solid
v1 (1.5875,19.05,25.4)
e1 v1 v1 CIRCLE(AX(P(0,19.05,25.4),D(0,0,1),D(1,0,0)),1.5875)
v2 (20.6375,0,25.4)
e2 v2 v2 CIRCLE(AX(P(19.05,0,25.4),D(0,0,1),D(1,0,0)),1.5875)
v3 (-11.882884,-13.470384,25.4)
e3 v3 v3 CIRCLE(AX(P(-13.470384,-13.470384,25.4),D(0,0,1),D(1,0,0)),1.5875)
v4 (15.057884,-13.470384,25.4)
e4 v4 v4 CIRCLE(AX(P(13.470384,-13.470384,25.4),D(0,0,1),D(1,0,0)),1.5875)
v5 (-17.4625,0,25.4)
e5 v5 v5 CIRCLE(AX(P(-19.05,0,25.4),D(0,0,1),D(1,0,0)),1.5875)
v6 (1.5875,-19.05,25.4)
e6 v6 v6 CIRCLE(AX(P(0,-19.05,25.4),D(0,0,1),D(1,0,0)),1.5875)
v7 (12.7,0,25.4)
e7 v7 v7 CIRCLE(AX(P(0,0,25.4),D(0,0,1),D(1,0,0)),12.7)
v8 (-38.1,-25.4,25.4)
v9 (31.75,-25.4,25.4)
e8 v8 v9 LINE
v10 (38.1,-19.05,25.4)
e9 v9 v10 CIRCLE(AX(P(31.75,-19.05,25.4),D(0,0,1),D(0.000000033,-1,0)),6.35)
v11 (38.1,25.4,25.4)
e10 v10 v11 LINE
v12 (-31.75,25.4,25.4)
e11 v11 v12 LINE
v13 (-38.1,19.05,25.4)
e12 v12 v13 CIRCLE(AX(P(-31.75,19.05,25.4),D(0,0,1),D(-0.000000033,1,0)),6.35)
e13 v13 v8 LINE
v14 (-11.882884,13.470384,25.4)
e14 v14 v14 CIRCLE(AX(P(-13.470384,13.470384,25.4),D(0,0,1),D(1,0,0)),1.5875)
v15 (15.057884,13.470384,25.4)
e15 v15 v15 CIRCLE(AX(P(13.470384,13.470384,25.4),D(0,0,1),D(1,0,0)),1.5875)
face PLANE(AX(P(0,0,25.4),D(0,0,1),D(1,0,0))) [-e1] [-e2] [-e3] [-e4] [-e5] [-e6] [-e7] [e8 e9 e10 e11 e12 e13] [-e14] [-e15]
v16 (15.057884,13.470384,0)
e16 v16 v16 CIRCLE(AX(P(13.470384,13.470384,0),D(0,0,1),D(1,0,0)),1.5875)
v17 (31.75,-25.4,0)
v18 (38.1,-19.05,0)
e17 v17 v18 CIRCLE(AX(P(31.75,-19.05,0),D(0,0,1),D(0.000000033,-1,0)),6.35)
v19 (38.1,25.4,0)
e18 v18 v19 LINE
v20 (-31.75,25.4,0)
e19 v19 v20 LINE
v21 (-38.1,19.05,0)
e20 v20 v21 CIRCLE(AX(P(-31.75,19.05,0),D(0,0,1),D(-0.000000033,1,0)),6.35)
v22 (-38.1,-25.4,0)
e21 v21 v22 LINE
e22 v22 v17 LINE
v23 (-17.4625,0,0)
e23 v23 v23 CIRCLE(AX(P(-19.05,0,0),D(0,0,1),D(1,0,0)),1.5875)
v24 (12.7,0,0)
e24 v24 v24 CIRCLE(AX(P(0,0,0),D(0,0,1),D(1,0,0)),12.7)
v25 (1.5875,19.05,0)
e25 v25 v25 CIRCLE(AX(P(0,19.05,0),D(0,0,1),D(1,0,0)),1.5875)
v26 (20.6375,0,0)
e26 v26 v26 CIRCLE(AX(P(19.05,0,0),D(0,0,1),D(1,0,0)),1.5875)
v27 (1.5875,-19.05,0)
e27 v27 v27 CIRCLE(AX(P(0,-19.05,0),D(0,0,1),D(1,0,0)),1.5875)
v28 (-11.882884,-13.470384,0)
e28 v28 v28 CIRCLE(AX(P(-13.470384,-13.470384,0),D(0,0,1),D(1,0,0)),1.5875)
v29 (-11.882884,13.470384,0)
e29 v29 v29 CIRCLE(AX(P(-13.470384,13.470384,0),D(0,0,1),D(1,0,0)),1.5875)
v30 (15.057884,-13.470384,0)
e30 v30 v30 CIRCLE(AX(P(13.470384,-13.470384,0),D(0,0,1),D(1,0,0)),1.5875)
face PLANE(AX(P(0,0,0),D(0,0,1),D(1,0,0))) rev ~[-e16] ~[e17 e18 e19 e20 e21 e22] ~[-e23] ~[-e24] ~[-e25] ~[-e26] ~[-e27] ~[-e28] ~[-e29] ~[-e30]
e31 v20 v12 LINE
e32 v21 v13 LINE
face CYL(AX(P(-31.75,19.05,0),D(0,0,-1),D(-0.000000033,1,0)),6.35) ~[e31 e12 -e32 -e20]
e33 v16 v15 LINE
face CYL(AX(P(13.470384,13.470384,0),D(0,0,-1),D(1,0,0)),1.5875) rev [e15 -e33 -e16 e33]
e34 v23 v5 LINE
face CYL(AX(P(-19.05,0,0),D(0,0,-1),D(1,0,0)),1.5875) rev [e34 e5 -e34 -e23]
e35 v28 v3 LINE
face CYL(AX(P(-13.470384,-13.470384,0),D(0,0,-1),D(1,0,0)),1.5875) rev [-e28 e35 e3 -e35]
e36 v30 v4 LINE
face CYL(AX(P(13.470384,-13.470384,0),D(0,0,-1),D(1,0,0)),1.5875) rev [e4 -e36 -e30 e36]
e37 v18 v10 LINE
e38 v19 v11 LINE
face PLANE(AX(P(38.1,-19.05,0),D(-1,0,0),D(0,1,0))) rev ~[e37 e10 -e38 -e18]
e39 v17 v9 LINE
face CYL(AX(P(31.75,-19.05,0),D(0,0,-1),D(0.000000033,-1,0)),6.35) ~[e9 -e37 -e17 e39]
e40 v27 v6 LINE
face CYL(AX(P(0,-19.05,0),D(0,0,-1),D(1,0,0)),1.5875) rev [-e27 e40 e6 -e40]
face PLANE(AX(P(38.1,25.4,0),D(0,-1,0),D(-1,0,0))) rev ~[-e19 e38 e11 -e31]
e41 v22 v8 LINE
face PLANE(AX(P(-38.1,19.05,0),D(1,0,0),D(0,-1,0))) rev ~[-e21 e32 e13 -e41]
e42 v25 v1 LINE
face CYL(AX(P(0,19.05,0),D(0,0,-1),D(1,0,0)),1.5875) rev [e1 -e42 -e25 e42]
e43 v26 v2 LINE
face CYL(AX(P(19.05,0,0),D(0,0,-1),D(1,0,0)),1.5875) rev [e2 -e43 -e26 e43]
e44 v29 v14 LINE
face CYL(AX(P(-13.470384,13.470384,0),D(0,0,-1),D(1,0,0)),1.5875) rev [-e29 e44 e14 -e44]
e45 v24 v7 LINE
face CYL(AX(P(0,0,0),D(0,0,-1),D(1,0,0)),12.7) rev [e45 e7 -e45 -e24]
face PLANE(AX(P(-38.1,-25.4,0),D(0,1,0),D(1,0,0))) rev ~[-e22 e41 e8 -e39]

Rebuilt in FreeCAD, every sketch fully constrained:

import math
import FreeCAD as App
import Part
import Sketcher

V = App.Vector
Q = App.Units.Quantity

doc = App.newDocument("Part")
body = doc.addObject("PartDesign::Body", "Body")

sketch1 = doc.addObject("Sketcher::SketchObject", "Sketch")
body.addObject(sketch1)
sketch1.AttachmentSupport = (doc.XY_Plane, [""])
sketch1.MapMode = "FlatFace"
sketch1.addGeometry(Part.LineSegment(V(38.1, -19.05, 0), V(38.1, 25.4, 0)), False)
sketch1.addGeometry(Part.LineSegment(V(38.1, 25.4, 0), V(-31.75, 25.4, 0)), False)
sketch1.addGeometry(Part.ArcOfCircle(Part.Circle(V(-31.75, 19.05, 0), V(0, 0, 1), 6.35), math.radians(90.000002), math.radians(179.999998)), False)
sketch1.addGeometry(Part.LineSegment(V(-38.1, 19.05, 0), V(-38.1, -25.4, 0)), False)
sketch1.addGeometry(Part.LineSegment(V(-38.1, -25.4, 0), V(31.75, -25.4, 0)), False)
sketch1.addGeometry(Part.ArcOfCircle(Part.Circle(V(31.75, -19.05, 0), V(0, 0, 1), 6.35), math.radians(-89.999998), math.radians(-0.000002)), False)
sketch1.addGeometry(Part.Circle(V(-13.470384, -13.470384, 0), V(0, 0, 1), 1.5875), False)
sketch1.addGeometry(Part.Circle(V(0, -19.05, 0), V(0, 0, 1), 1.5875), False)
sketch1.addGeometry(Part.Circle(V(13.470384, -13.470384, 0), V(0, 0, 1), 1.5875), False)
sketch1.addGeometry(Part.Circle(V(-19.05, 0, 0), V(0, 0, 1), 1.5875), False)
sketch1.addGeometry(Part.Circle(V(-13.470384, 13.470384, 0), V(0, 0, 1), 1.5875), False)
sketch1.addGeometry(Part.Circle(V(0, 0, 0), V(0, 0, 1), 12.7), False)
sketch1.addGeometry(Part.Circle(V(19.05, 0, 0), V(0, 0, 1), 1.5875), False)
sketch1.addGeometry(Part.Circle(V(0, 19.05, 0), V(0, 0, 1), 1.5875), False)
sketch1.addGeometry(Part.Circle(V(13.470384, 13.470384, 0), V(0, 0, 1), 1.5875), False)
sketch1.addConstraint(Sketcher.Constraint("Coincident", 0, 2, 1, 1))
sketch1.addConstraint(Sketcher.Constraint("Tangent", 1, 2, 2, 1))
sketch1.addConstraint(Sketcher.Constraint("Tangent", 2, 2, 3, 1))
sketch1.addConstraint(Sketcher.Constraint("Coincident", 3, 2, 4, 1))
sketch1.addConstraint(Sketcher.Constraint("Tangent", 4, 2, 5, 1))
sketch1.addConstraint(Sketcher.Constraint("Tangent", 5, 2, 0, 1))
sketch1.addConstraint(Sketcher.Constraint("Vertical", 0))
sketch1.addConstraint(Sketcher.Constraint("Horizontal", 1))
sketch1.addConstraint(Sketcher.Constraint("Vertical", 3))
sketch1.addConstraint(Sketcher.Constraint("Horizontal", 4))
sketch1.addConstraint(Sketcher.Constraint("Coincident", 11, 3, -1, 1))
sketch1.addConstraint(Sketcher.Constraint("Equal", 2, 5))
sketch1.addConstraint(Sketcher.Constraint("Equal", 6, 7))
sketch1.addConstraint(Sketcher.Constraint("Equal", 7, 8))
sketch1.addConstraint(Sketcher.Constraint("Equal", 8, 9))
sketch1.addConstraint(Sketcher.Constraint("Equal", 9, 10))
sketch1.addConstraint(Sketcher.Constraint("Equal", 10, 12))
sketch1.addConstraint(Sketcher.Constraint("Equal", 12, 13))
sketch1.addConstraint(Sketcher.Constraint("Equal", 13, 14))
sketch1.addConstraint(Sketcher.Constraint("Symmetric", 2, 3, 5, 3, -1, 1))
sketch1.addConstraint(Sketcher.Constraint("Symmetric", 8, 3, 10, 3, -1, 1))
sketch1.addConstraint(Sketcher.Constraint("Symmetric", 9, 3, 12, 3, -1, 1))
sketch1.addConstraint(Sketcher.Constraint("Symmetric", 7, 3, 13, 3, -1, 1))
sketch1.addConstraint(Sketcher.Constraint("Symmetric", 6, 3, 14, 3, -1, 1))
sketch1.addConstraint(Sketcher.Constraint("Symmetric", 6, 3, 8, 3, -2))
sketch1.addConstraint(Sketcher.Constraint("PointOnObject", 7, 3, -2))
sketch1.addConstraint(Sketcher.Constraint("PointOnObject", 9, 3, -1))
sketch1.addConstraint(Sketcher.Constraint("Horizontal", 5, 3, 7, 3))
sketch1.addConstraint(Sketcher.Constraint("Diameter", 11, Q("1 in")))
sketch1.addConstraint(Sketcher.Constraint("Radius", 2, Q("0.25 in")))
sketch1.addConstraint(Sketcher.Constraint("Diameter", 6, Q("0.125 in")))
sketch1.addConstraint(Sketcher.Constraint("DistanceY", -1, 1, 0, 2, Q("1 in")))
sketch1.addConstraint(Sketcher.Constraint("DistanceX", 9, 3, 5, 3, Q("2 in")))
sketch1.addConstraint(Sketcher.Constraint("DistanceX", 1, 2, 1, 1, Q("2.75 in")))
sketch1.addConstraint(Sketcher.Constraint("DistanceX", 6, 3, -1, 1, Q("13.470384 mm")))
sketch1.addConstraint(Sketcher.Constraint("DistanceY", 6, 3, -1, 1, Q("13.470384 mm")))
pad1 = doc.addObject("PartDesign::Pad", "Pad")
body.addObject(pad1)
pad1.Profile = sketch1
pad1.Length = Q("1 in")

doc.recompute()
